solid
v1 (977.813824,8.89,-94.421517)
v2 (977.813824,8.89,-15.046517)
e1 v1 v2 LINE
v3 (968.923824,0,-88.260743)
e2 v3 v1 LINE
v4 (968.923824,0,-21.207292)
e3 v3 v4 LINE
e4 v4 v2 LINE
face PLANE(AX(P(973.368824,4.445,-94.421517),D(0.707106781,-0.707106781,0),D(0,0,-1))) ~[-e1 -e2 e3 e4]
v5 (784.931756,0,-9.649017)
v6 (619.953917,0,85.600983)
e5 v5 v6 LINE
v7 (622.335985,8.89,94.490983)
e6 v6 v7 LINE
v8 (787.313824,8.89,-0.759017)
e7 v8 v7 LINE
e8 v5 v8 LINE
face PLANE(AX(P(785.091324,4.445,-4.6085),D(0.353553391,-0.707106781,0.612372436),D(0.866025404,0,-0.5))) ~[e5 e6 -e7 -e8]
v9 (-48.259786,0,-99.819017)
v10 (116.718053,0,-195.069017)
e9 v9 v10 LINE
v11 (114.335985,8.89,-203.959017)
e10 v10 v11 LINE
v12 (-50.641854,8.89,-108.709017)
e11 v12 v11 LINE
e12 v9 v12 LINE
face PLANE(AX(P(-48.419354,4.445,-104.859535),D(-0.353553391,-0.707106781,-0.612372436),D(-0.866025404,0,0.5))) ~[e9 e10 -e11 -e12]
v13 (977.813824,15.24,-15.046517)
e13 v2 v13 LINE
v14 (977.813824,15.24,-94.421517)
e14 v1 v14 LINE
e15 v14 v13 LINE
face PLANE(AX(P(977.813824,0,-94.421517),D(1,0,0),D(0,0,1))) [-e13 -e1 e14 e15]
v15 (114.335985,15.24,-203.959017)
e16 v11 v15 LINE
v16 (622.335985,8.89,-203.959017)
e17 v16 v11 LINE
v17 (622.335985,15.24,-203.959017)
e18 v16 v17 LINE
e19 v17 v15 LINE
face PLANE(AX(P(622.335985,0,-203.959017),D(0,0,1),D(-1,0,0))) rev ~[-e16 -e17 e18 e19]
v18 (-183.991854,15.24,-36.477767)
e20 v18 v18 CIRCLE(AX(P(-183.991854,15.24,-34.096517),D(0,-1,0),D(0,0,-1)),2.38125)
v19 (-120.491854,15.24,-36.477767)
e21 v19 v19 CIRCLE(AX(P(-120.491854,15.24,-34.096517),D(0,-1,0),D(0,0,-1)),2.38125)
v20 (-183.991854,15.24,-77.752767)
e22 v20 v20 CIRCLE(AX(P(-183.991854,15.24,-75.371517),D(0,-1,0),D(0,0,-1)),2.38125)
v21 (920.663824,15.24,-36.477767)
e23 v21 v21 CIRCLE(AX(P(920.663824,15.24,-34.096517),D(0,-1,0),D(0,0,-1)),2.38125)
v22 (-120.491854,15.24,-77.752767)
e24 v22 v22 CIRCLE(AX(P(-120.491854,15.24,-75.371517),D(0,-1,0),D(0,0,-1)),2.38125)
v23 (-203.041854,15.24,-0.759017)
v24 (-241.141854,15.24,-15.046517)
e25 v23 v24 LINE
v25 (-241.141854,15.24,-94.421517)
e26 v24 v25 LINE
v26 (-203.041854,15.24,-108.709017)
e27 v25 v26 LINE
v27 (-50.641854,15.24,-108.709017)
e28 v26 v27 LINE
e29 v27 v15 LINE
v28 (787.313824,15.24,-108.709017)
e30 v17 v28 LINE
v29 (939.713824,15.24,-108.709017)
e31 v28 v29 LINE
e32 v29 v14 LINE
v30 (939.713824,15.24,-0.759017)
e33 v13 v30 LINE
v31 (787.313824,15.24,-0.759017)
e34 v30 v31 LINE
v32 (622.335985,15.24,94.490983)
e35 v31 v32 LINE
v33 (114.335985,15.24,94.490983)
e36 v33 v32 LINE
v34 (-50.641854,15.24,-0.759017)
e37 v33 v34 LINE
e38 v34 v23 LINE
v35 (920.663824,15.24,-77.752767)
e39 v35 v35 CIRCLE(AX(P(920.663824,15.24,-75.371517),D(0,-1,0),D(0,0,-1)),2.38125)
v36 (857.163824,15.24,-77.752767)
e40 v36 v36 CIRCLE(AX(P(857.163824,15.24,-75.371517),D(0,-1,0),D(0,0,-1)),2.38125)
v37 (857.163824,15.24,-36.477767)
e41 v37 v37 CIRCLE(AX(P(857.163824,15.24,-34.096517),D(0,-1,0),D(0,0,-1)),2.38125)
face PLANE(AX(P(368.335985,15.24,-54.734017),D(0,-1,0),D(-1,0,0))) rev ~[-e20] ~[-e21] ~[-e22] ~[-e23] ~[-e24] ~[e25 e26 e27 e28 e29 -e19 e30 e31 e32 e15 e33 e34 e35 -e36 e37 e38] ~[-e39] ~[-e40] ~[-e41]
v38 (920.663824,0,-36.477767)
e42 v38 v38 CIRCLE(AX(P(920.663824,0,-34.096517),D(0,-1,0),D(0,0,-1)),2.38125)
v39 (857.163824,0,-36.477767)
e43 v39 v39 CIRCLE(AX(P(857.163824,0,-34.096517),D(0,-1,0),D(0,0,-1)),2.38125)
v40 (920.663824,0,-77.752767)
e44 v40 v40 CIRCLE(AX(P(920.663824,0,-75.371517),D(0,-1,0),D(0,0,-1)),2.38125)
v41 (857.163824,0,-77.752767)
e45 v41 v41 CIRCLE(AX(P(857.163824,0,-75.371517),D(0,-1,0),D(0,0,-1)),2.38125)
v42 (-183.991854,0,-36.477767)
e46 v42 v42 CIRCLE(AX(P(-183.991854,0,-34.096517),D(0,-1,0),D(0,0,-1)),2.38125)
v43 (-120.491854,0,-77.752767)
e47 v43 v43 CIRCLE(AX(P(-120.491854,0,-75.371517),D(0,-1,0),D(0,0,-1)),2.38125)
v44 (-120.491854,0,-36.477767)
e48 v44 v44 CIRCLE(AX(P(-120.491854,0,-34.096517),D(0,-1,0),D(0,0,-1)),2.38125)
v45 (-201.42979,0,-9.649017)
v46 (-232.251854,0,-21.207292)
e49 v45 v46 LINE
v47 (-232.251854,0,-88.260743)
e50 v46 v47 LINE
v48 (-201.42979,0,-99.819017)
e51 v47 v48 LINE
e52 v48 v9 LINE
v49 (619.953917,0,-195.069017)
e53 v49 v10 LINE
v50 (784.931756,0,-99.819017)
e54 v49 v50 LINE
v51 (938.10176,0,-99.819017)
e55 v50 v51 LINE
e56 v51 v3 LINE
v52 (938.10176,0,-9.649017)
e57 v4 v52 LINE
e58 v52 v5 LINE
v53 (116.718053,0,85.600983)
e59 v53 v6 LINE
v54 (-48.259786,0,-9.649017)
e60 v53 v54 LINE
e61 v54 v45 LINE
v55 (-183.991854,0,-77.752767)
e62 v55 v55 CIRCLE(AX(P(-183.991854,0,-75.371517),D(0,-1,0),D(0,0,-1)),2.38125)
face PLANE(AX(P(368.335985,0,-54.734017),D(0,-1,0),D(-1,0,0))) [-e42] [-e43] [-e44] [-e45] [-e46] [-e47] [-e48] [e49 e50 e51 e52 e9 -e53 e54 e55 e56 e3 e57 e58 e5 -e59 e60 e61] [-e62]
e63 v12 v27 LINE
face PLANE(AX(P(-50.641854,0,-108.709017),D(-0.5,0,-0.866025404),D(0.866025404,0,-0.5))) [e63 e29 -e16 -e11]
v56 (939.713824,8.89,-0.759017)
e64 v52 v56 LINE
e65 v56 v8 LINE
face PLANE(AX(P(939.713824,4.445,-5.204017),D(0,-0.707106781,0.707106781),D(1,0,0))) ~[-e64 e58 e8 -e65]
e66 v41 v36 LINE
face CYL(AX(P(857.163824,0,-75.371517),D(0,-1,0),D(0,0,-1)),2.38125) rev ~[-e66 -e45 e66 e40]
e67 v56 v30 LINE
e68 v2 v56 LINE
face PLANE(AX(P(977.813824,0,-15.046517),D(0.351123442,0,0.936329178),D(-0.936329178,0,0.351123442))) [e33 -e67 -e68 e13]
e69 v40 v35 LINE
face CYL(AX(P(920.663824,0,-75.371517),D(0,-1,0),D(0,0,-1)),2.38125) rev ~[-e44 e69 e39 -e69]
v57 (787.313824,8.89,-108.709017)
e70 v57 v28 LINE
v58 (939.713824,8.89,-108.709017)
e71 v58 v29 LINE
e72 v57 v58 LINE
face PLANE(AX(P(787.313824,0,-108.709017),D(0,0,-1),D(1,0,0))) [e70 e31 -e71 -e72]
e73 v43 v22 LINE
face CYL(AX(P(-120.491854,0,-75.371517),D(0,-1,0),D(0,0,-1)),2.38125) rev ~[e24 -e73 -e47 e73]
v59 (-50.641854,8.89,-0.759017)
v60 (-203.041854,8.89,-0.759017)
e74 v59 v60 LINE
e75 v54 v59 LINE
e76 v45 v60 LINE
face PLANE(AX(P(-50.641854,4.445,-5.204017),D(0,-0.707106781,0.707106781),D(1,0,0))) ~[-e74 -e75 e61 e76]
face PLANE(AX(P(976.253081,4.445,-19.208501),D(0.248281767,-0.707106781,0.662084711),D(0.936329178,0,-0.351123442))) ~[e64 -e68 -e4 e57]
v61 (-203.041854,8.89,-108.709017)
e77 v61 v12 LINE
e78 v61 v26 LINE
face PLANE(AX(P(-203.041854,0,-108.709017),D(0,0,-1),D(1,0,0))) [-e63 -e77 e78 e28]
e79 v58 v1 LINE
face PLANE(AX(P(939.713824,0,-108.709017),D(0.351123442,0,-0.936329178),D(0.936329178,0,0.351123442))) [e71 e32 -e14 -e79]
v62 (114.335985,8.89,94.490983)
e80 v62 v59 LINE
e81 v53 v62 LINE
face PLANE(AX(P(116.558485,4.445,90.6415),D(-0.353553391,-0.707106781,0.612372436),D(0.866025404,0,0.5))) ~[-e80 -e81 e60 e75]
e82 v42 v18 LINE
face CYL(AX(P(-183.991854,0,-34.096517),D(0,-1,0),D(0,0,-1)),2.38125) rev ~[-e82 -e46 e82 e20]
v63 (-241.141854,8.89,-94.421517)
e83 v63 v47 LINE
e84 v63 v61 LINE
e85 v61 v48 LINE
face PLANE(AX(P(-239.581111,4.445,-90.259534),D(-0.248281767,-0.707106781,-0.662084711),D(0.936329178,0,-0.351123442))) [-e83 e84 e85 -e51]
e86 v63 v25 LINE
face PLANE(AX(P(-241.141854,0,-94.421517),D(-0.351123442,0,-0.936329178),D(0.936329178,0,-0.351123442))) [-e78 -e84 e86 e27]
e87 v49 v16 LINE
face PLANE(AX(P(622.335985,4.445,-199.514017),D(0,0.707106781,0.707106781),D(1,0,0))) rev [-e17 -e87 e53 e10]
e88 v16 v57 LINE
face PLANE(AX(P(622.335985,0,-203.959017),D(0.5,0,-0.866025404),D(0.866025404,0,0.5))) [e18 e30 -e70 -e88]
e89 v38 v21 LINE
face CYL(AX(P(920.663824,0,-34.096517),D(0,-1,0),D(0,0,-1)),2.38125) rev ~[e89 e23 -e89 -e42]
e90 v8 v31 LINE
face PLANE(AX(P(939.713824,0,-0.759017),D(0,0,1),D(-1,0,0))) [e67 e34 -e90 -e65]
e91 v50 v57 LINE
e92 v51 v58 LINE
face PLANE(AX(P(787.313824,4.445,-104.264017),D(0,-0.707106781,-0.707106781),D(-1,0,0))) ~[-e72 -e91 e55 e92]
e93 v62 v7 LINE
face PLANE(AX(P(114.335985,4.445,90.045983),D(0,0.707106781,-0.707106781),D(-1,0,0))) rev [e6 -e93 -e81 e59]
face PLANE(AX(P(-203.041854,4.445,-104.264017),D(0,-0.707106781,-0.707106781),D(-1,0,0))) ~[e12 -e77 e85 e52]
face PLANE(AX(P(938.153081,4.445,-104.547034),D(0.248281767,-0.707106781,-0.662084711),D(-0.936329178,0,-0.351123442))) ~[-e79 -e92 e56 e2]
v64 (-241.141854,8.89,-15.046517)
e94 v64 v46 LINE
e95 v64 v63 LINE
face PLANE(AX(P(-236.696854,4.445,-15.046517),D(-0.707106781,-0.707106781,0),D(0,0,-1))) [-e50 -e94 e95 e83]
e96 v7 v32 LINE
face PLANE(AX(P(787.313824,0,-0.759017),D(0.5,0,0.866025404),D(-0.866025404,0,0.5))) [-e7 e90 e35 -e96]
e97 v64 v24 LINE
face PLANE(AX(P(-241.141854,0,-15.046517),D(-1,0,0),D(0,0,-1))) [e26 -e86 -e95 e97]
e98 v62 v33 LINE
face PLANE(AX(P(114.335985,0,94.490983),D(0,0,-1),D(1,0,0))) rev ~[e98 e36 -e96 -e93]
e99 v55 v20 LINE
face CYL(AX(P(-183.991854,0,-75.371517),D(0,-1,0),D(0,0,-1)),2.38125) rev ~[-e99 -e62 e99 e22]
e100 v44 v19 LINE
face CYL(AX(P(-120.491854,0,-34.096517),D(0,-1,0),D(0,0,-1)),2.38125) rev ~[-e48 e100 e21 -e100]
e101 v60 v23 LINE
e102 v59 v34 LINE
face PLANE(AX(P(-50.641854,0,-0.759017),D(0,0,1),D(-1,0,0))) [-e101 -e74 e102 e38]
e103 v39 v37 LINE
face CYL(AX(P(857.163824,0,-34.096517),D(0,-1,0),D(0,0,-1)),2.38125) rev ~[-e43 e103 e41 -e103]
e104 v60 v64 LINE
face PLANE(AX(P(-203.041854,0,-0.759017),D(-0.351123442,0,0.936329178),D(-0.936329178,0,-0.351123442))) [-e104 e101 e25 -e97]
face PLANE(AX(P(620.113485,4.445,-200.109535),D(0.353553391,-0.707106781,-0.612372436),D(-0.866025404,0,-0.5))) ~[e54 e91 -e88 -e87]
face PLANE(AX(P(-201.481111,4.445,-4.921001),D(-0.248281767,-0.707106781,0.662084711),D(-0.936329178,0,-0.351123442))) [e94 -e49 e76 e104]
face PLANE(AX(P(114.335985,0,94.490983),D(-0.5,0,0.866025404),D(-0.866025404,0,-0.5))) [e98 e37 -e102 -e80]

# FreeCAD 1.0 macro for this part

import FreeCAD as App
import Part
import Sketcher
from FreeCAD import Vector
Q = App.Units.Quantity


def edges_at(feature, points):
    """Names of the edges that pass closest to the given points."""
    edges = feature.Shape.Edges
    near = lambda p: min(range(len(edges)), key=lambda i: edges[i].distToShape(Part.Vertex(*p))[0])
    return sorted({f"Edge{near(p) + 1}" for p in points})


def add_polygon(sketch, points):
    """Adds a closed chain of lines whose ends are joined by coincident constraints."""
    first, n = sketch.GeometryCount, len(points)
    for a, b in zip(points, points[1:] + points[:1]):
        sketch.addGeometry(Part.LineSegment(App.Vector(*a, 0), App.Vector(*b, 0)), False)
    for i in range(n):
        sketch.addConstraint(Sketcher.Constraint("Coincident", first + i, 2, first + (i + 1) % n, 1))

doc = App.newDocument("Part")
body = doc.addObject("PartDesign::Body", "Body")

# Sketch on XZ plane
sketch1 = body.newObject("Sketcher::SketchObject", "Sketch")
sketch1.AttachmentSupport = (doc.getObject("XZ_Plane"), [""])
sketch1.MapMode = "FlatFace"
add_polygon(sketch1, [(-241.141854, -94.421517), (-241.141854, -15.046517), (-203.041854, -0.759017), (-50.641854, -0.759017), (114.335985, 94.490983), (622.335985, 94.490983), (787.313824, -0.759017), (939.713824, -0.759017), (977.813824, -15.046517), (977.813824, -94.421517), (939.713824, -108.709017), (787.313824, -108.709017), (622.335985, -203.959017), (114.335985, -203.959017), (-50.641854, -108.709017), (-203.041854, -108.709017)])  # lines 0-15
sketch1.addConstraint([
    Sketcher.Constraint("Vertical", 0),
    Sketcher.Constraint("Horizontal", 2),
    Sketcher.Constraint("Horizontal", 4),
    Sketcher.Constraint("Horizontal", 6),
    Sketcher.Constraint("Vertical", 8),
    Sketcher.Constraint("Horizontal", 10),
    Sketcher.Constraint("Horizontal", 12),
    Sketcher.Constraint("Horizontal", 14),
    Sketcher.Constraint("Parallel", 1, 9),
    Sketcher.Constraint("Parallel", 3, 11),
    Sketcher.Constraint("Parallel", 5, 13),
    Sketcher.Constraint("Parallel", 7, 15),
    Sketcher.Constraint("Horizontal", 2, 2, 5, 2),
    Sketcher.Constraint("Horizontal", 0, 2, 7, 2),
    Sketcher.Constraint("Horizontal", 10, 2, 13, 2),
    Sketcher.Constraint("Horizontal", 8, 2, 15, 2),
    Sketcher.Constraint("Vertical", 6, 2, 9, 2),
    Sketcher.Constraint("Vertical", 5, 2, 10, 2),
    Sketcher.Constraint("Vertical", 4, 2, 11, 2),
    Sketcher.Constraint("Vertical", 3, 2, 12, 2),
    Sketcher.Constraint("Vertical", 2, 2, 13, 2),
    Sketcher.Constraint("Vertical", 1, 2, 14, 2),
    Sketcher.Constraint("Equal", 2, 6),
    Sketcher.Constraint("DistanceX", 2, 1, 2, 2, Q("6 in")),
    Sketcher.Constraint("DistanceX", 4, 1, 4, 2, Q("20 in")),
    Sketcher.Constraint("Angle", 3, Q("30 deg")),
    Sketcher.Constraint("DistanceY", 9, 2, 4, 2, Q("8 in")),
    Sketcher.Constraint("Distance", 3, Q("7.5 in")),
    Sketcher.Constraint("DistanceX", 0, 2, 1, 2, Q("1.5 in")),
    Sketcher.Constraint("DistanceY", 0, 1, 0, 2, Q("3.125 in")),
    Sketcher.Constraint("DistanceX", 0, 2, -1, 1, 241.141854),
    Sketcher.Constraint("DistanceY", 0, 2, -1, 1, 15.046517),
])
pad1 = body.newObject("PartDesign::Pad", "Pad")
pad1.Profile = sketch1
pad1.Length = Q("0.6 in")
pad1.Reversed = True

# Sketch on XZ plane
sketch2 = body.newObject("Sketcher::SketchObject", "Sketch001")
sketch2.AttachmentSupport = (doc.getObject("XZ_Plane"), [""])
sketch2.MapMode = "FlatFace"
sketch2.addGeometry([
    Part.Circle(Vector(-183.991854, -34.096517, 0), Vector(0, 0, 1), 2.38125),  # 0
    Part.Circle(Vector(-183.991854, -75.371517, 0), Vector(0, 0, 1), 2.38125),  # 1
    Part.Circle(Vector(-120.491854, -75.371517, 0), Vector(0, 0, 1), 2.38125),  # 2
    Part.Circle(Vector(-120.491854, -34.096517, 0), Vector(0, 0, 1), 2.38125),  # 3
    Part.Circle(Vector(857.163824, -75.371517, 0), Vector(0, 0, 1), 2.38125),  # 4
    Part.Circle(Vector(920.663824, -75.371517, 0), Vector(0, 0, 1), 2.38125),  # 5
    Part.Circle(Vector(920.663824, -34.096517, 0), Vector(0, 0, 1), 2.38125),  # 6
    Part.Circle(Vector(857.163824, -34.096517, 0), Vector(0, 0, 1), 2.38125),  # 7
], False)
sketch2.addConstraint([
    Sketcher.Constraint("Equal", 0, 1),
    Sketcher.Constraint("Equal", 1, 2),
    Sketcher.Constraint("Equal", 2, 3),
    Sketcher.Constraint("Equal", 3, 4),
    Sketcher.Constraint("Equal", 4, 5),
    Sketcher.Constraint("Equal", 5, 6),
    Sketcher.Constraint("Equal", 6, 7),
    Sketcher.Constraint("Horizontal", 1, 3, 2, 3),
    Sketcher.Constraint("Horizontal", 0, 3, 3, 3),
    Sketcher.Constraint("Horizontal", 2, 3, 4, 3),
    Sketcher.Constraint("Horizontal", 4, 3, 5, 3),
    Sketcher.Constraint("Horizontal", 3, 3, 6, 3),
    Sketcher.Constraint("Horizontal", 6, 3, 7, 3),
    Sketcher.Constraint("Vertical", 0, 3, 1, 3),
    Sketcher.Constraint("Vertical", 2, 3, 3, 3),
    Sketcher.Constraint("Vertical", 5, 3, 6, 3),
    Sketcher.Constraint("Vertical", 4, 3, 7, 3),
    Sketcher.Constraint("Diameter", 0, Q("0.1875 in")),
    Sketcher.Constraint("DistanceX", 1, 3, 2, 3, Q("2.5 in")),
    Sketcher.Constraint("DistanceX", 4, 3, 5, 3, Q("2.5 in")),
    Sketcher.Constraint("DistanceY", 1, 3, 0, 3, Q("1.625 in")),
    Sketcher.Constraint("DistanceX", 2, 3, 4, 3, 977.655679),
    Sketcher.Constraint("DistanceX", 0, 3, -1, 1, 183.991854),
    Sketcher.Constraint("DistanceY", 0, 3, -1, 1, 34.096517),
])
pocket1 = body.newObject("PartDesign::Pocket", "Pocket")
pocket1.Profile = sketch2
pocket1.Length = Q("0.6 in")
doc.recompute()

chamfer = body.newObject("PartDesign::Chamfer", "Chamfer")
chamfer.Base = (pocket1, edges_at(pocket1, [
    (-126.842, 0, -0.759),
    (-222.092, 0, -7.903),
    (-241.142, 0, -54.734),
    (-222.092, 0, -101.565),
    (-126.842, 0, -108.709),
    (31.847, 0, -156.334),
    (368.336, 0, -203.959),
    (704.825, 0, -156.334),
    (863.514, 0, -108.709),
    (958.764, 0, -101.565),
    (977.814, 0, -54.734),
    (958.764, 0, -7.903),
    (863.514, 0, -0.759),
    (704.825, 0, 46.866),
    (368.336, 0, 94.491),
    (31.847, 0, 46.866),
]))
chamfer.Size = Q("0.35 in")

doc.recompute()
